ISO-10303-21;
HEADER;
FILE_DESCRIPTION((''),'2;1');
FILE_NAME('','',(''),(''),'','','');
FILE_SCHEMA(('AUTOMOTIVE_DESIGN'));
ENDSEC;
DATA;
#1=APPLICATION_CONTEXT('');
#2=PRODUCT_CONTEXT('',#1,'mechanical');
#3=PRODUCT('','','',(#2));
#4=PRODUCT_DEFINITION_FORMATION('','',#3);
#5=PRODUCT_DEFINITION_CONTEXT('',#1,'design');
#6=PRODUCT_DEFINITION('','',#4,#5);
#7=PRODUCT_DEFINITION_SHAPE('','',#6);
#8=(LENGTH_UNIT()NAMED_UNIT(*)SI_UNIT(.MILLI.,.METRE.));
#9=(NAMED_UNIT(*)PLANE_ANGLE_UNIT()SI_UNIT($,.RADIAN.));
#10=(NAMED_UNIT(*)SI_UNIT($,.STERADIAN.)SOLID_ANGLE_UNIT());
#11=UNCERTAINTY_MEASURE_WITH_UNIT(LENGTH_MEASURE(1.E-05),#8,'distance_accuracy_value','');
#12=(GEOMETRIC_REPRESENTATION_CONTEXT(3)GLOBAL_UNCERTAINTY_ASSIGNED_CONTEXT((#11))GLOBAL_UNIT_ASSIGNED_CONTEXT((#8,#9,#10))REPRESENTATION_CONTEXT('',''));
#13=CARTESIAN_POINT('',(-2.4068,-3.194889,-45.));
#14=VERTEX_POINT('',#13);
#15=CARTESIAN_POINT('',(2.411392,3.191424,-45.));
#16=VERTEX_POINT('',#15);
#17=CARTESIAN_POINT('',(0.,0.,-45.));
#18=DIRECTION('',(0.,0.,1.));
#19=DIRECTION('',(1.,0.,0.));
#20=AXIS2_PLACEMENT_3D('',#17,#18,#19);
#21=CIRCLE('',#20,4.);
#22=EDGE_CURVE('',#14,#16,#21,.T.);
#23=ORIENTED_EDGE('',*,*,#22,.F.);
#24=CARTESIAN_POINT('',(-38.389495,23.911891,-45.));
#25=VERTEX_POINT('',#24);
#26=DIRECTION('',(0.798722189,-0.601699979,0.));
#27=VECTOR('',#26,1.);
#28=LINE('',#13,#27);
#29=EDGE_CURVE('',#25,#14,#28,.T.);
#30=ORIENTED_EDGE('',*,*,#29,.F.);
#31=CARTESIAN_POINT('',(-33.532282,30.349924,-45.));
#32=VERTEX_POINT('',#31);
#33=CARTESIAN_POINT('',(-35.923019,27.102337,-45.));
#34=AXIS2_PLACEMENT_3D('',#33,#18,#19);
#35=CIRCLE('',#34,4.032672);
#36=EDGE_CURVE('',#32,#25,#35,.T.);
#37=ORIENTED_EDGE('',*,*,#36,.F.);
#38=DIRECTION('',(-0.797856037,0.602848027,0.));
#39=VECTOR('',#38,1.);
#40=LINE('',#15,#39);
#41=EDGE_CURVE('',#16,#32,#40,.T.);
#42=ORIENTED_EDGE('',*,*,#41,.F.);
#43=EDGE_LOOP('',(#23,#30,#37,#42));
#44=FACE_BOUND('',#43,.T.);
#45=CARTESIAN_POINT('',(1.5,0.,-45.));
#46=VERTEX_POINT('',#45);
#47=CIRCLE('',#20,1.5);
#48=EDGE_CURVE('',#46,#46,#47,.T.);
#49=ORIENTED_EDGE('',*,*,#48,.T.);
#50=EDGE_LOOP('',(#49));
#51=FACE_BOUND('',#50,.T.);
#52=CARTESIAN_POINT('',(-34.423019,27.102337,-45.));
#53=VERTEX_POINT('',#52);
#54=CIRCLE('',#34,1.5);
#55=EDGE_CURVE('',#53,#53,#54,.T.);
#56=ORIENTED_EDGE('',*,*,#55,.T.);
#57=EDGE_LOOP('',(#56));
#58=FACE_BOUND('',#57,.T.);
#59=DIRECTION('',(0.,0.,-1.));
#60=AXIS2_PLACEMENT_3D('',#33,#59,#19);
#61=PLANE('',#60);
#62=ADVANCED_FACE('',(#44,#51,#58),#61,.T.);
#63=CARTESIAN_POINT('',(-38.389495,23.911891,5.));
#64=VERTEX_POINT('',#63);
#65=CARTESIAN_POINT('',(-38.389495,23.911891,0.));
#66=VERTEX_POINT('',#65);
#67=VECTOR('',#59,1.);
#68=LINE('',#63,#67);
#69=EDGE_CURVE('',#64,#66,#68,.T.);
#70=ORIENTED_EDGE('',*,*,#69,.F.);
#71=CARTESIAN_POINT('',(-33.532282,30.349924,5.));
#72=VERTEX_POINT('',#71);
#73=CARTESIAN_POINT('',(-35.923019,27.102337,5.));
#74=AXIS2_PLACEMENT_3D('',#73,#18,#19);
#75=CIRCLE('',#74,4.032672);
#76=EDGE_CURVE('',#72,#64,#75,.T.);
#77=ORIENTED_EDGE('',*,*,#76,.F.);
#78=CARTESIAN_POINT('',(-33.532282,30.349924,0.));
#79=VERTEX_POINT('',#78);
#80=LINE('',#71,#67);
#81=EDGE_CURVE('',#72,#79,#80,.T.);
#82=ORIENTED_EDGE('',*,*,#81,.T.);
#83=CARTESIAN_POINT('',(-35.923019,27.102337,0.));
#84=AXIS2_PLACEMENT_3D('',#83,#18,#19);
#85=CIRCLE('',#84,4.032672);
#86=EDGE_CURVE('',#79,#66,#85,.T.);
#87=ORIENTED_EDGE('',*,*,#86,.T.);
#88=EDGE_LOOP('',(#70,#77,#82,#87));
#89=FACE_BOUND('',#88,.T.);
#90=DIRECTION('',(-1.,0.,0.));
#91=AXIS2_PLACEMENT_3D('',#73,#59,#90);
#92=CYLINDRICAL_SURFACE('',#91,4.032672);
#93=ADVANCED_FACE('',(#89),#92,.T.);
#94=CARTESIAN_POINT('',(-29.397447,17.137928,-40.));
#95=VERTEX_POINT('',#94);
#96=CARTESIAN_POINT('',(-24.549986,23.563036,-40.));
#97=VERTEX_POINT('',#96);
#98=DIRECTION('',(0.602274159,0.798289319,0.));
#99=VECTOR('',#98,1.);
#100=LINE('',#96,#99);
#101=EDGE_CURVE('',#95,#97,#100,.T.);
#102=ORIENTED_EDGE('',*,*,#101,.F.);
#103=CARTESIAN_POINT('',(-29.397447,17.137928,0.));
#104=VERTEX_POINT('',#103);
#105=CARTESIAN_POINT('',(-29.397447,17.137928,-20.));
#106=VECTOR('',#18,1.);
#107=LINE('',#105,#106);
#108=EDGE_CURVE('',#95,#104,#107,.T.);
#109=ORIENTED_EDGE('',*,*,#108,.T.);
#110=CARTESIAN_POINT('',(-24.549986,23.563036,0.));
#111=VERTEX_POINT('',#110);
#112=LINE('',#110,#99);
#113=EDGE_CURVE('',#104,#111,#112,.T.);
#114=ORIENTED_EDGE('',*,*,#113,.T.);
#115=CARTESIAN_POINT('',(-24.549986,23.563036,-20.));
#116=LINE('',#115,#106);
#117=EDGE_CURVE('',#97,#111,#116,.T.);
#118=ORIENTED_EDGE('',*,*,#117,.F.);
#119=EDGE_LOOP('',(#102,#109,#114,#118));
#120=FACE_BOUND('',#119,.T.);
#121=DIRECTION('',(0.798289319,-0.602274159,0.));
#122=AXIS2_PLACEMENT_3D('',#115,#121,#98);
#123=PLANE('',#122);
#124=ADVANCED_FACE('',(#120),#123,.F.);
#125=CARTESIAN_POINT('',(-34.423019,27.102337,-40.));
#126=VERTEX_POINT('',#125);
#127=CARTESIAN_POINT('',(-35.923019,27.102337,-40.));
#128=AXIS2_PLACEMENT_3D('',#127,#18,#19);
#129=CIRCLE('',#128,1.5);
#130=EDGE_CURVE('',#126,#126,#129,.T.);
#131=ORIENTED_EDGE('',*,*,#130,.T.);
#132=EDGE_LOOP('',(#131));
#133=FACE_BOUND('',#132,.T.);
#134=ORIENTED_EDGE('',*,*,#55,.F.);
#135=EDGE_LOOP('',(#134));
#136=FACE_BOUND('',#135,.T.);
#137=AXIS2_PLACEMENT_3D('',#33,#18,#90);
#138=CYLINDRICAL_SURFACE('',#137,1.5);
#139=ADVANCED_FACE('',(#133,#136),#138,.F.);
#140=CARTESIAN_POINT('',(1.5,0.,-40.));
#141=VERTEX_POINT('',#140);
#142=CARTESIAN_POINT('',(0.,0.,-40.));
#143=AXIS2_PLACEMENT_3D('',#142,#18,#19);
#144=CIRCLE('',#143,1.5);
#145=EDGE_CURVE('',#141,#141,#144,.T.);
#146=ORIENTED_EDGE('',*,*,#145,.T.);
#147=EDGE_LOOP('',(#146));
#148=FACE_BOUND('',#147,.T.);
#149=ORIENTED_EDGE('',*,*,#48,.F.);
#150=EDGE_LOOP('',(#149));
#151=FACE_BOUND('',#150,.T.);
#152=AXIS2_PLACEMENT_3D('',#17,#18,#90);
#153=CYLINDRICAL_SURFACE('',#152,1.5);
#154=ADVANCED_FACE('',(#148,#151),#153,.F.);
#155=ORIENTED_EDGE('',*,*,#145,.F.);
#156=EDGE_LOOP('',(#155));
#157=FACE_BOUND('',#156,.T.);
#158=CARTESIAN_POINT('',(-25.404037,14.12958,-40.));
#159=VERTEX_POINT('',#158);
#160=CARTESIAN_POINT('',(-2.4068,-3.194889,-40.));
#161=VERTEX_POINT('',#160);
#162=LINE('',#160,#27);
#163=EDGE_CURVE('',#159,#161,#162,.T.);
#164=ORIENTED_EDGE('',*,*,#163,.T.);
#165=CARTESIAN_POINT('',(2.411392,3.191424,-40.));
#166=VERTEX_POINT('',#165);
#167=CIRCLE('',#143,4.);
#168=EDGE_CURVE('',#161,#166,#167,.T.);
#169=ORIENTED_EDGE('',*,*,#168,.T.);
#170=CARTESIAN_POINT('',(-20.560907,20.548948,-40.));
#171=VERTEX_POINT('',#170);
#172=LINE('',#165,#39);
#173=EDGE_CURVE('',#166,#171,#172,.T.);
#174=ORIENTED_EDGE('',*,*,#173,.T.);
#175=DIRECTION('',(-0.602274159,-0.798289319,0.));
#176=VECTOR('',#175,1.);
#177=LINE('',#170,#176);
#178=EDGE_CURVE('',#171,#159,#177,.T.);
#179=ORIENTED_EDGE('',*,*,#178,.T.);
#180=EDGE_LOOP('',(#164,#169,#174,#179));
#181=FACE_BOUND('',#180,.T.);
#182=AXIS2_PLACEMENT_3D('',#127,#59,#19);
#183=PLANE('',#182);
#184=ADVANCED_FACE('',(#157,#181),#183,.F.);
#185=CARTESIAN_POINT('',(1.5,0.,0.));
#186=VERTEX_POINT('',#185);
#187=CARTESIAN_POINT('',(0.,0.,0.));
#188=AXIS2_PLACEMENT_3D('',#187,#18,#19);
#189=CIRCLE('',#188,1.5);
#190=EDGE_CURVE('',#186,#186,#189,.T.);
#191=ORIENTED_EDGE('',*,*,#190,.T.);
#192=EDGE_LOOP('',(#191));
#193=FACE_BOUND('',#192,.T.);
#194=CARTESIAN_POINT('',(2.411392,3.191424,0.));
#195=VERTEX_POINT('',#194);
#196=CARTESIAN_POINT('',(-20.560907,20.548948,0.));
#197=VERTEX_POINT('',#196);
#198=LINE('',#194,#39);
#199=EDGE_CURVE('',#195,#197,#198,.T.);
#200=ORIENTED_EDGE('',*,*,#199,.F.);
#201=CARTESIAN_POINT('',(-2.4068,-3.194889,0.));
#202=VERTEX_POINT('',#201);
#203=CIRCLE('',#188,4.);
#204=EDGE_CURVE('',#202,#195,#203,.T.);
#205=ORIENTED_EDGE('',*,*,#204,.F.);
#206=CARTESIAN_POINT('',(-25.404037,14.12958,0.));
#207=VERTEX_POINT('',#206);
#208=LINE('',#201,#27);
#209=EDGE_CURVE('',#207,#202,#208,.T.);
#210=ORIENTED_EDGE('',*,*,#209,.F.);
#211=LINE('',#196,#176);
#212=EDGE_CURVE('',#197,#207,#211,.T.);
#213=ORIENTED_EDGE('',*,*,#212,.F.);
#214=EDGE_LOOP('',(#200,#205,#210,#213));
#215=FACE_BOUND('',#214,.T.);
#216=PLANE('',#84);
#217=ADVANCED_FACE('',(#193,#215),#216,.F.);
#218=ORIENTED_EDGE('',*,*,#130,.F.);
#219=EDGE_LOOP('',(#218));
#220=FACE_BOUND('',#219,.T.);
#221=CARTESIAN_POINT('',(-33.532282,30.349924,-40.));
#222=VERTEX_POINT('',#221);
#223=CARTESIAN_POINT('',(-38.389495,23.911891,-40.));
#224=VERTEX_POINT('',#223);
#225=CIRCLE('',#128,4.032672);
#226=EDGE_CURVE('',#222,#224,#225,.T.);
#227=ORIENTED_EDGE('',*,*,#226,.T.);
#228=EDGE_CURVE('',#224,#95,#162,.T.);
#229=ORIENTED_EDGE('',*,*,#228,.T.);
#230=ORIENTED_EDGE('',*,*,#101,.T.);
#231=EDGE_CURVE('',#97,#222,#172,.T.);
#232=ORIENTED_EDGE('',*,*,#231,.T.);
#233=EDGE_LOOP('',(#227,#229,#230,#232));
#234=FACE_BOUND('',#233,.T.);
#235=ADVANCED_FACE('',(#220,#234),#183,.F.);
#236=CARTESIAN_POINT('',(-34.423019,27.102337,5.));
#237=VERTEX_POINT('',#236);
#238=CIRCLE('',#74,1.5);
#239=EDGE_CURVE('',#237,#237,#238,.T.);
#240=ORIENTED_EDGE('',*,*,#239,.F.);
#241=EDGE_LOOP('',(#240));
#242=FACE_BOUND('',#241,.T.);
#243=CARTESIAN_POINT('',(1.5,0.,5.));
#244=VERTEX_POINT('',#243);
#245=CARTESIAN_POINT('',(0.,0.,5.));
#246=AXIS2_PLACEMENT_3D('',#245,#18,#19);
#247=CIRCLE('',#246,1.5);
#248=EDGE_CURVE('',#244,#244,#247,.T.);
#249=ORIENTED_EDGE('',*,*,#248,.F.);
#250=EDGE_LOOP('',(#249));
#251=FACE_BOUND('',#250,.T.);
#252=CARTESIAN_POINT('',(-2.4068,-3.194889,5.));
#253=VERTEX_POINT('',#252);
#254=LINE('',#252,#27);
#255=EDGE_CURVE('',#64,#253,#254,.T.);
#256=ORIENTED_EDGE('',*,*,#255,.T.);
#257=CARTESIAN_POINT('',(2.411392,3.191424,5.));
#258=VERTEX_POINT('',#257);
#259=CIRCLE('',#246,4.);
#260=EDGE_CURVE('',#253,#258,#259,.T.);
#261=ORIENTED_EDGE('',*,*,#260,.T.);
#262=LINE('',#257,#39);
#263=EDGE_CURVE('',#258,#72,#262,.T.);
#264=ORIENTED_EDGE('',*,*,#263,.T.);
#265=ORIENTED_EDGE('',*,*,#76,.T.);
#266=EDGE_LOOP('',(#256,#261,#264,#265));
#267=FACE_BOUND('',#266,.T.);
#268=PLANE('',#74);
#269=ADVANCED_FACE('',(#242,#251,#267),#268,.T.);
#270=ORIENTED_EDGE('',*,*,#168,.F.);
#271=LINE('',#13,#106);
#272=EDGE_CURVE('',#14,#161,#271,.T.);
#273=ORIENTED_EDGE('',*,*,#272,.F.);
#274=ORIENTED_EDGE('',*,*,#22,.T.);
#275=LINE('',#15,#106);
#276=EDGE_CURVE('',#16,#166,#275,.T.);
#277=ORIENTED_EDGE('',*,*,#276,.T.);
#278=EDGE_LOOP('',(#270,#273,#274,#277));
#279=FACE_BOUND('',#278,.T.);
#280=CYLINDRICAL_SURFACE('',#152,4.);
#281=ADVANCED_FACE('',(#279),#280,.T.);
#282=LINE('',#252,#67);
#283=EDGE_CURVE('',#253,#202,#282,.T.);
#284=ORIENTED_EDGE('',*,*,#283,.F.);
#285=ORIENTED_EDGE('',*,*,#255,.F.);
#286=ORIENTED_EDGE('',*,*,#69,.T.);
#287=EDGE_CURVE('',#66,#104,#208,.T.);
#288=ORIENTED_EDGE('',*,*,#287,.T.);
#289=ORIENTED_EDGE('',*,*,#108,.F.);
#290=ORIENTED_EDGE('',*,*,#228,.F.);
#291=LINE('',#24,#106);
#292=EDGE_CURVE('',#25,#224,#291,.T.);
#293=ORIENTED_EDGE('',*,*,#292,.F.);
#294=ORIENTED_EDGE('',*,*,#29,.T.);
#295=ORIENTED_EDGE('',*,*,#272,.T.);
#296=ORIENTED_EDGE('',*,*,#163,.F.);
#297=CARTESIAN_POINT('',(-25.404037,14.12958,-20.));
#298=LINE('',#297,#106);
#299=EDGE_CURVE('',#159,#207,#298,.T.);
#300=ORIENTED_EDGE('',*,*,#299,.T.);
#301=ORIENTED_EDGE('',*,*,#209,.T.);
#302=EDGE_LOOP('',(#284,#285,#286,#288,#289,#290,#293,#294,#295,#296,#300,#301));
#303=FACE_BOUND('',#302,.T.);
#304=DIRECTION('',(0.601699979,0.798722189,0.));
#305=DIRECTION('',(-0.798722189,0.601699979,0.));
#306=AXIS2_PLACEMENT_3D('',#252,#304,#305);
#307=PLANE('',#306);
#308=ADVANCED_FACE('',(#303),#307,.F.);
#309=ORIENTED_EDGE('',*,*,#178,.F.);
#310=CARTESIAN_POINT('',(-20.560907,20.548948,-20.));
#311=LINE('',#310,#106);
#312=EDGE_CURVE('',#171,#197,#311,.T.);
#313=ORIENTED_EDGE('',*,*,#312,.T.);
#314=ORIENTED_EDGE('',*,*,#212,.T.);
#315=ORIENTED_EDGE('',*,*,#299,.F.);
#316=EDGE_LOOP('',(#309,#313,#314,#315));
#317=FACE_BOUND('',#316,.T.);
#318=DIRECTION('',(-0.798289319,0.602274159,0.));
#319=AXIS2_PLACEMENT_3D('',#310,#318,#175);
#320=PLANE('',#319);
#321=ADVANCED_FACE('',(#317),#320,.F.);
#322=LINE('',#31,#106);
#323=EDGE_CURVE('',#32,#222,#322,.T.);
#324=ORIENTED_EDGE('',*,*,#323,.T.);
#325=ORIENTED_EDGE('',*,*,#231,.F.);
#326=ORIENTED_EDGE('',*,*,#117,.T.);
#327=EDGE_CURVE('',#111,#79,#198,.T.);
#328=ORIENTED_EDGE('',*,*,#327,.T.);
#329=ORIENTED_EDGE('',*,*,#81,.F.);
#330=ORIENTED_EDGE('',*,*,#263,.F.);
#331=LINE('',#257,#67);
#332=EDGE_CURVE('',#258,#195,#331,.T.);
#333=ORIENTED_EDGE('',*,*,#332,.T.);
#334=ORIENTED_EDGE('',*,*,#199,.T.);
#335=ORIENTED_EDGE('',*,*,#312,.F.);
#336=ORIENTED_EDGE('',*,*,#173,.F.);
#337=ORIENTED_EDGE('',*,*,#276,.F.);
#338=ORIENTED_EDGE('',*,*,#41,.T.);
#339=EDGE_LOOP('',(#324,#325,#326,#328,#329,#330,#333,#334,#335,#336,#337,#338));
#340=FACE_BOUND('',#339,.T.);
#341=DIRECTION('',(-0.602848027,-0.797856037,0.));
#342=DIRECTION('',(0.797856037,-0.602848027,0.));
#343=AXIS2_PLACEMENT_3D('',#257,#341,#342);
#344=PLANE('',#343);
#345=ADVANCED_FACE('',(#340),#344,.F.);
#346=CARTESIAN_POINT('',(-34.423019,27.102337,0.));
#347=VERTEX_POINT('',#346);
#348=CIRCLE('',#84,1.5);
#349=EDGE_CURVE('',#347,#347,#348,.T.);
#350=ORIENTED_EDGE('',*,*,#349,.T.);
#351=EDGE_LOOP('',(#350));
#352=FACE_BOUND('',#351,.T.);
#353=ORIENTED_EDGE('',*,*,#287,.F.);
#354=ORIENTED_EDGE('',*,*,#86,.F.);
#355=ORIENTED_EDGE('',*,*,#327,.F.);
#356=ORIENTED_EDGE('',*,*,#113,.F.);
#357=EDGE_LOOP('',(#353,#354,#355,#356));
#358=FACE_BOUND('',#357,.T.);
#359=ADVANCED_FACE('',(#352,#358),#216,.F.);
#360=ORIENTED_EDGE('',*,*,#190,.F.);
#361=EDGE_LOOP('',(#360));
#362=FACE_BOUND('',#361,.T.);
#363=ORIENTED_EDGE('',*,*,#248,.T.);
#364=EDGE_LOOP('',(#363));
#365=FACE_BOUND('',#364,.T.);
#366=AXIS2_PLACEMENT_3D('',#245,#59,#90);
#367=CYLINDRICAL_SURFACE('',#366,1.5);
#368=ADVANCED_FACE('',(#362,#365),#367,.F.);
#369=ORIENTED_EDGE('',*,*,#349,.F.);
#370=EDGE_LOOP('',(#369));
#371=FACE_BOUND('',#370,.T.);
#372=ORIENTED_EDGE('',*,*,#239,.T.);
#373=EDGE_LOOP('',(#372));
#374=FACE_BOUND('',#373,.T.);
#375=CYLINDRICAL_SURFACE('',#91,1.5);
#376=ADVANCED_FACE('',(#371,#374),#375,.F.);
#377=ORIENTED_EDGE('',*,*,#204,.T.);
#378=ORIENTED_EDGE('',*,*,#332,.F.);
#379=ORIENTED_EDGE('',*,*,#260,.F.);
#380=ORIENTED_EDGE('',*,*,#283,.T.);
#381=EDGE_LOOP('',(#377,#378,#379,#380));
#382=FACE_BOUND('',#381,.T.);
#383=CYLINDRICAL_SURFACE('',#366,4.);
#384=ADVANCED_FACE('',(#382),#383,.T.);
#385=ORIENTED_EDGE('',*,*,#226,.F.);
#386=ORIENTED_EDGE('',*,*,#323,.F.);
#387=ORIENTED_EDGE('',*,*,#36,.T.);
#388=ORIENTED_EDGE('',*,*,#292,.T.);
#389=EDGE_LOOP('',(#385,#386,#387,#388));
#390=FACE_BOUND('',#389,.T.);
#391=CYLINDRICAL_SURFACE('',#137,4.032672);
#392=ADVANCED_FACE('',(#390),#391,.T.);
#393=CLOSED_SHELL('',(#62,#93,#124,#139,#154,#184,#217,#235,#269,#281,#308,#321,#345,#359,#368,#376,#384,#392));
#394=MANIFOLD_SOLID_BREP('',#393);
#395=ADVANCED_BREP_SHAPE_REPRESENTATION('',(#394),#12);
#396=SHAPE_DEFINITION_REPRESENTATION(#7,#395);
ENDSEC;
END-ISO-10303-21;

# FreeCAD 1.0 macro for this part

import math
import FreeCAD as App
import Part
import Sketcher

V = App.Vector

doc = App.newDocument("Part")
body = doc.addObject("PartDesign::Body", "Body")

# Sketch on XY plane
sketch1 = body.newObject("Sketcher::SketchObject", "Sketch")
sketch1.AttachmentSupport = (doc.getObject("XY_Plane"), [""])
sketch1.MapMode = "FlatFace"
sketch1.addGeometry([
    Part.LineSegment(V(2.4, 3.2, 0), V(-33.5, 30.3, 0)),  # 0
    Part.ArcOfCircle(Part.Circle(V(-35.9, 27.1, 0), V(0, 0, 1), 4), math.radians(54), math.radians(232)),  # 1
    Part.LineSegment(V(-38.4, 23.9, 0), V(-2.4, -3.2, 0)),  # 2
    Part.ArcOfCircle(Part.Circle(V(0, 0, 0), V(0, 0, 1), 4), math.radians(-127), math.radians(53)),  # 3
    Part.Circle(V(0, 0, 0), V(0, 0, 1), 1.5),  # 4
    Part.Circle(V(-35.9, 27.1, 0), V(0, 0, 1), 1.5),  # 5
], False)
sketch1.addConstraint([
    Sketcher.Constraint("Coincident", 0, 2, 1, 1),
    Sketcher.Constraint("Coincident", 1, 2, 2, 1),
    Sketcher.Constraint("Tangent", 2, 2, 3, 1),
    Sketcher.Constraint("Tangent", 3, 2, 0, 1),
    Sketcher.Constraint("Coincident", 3, 3, -1, 1),
    Sketcher.Constraint("Coincident", 4, 3, -1, 1),
    Sketcher.Constraint("Coincident", 5, 3, 1, 3),
    Sketcher.Constraint("Equal", 4, 5),
    Sketcher.Constraint("Equal", 0, 2),
    Sketcher.Constraint("Diameter", 4, 3.0),
    Sketcher.Constraint("Radius", 3, 4.0),
    Sketcher.Constraint("Radius", 1, 4.032672),
    Sketcher.Constraint("DistanceX", 2, 2, -1, 1, 2.4068),
    Sketcher.Constraint("DistanceY", 3, 2, 0, 2, 27.1585),
    Sketcher.Constraint("DistanceX", 1, 3, -1, 1, 35.923019),
])
pad1 = body.newObject("PartDesign::Pad", "Pad")
pad1.Profile = sketch1
pad1.Length = 5

# Sketch on XY plane
sketch2 = body.newObject("Sketcher::SketchObject", "Sketch001")
sketch2.AttachmentSupport = (doc.getObject("XY_Plane"), [""])
sketch2.MapMode = "FlatFace"
sketch2.addGeometry([
    Part.LineSegment(V(-20.6, 20.5, 0), V(-25.4, 14.1, 0)),
    Part.LineSegment(V(-25.4, 14.1, 0), V(-29.4, 17.1, 0)),
    Part.LineSegment(V(-29.4, 17.1, 0), V(-24.5, 23.6, 0)),
    Part.LineSegment(V(-24.5, 23.6, 0), V(-20.6, 20.5, 0)),
], False)
sketch2.addConstraint([
    Sketcher.Constraint("Coincident", 0, 2, 1, 1),
    Sketcher.Constraint("Coincident", 1, 2, 2, 1),
    Sketcher.Constraint("Coincident", 2, 2, 3, 1),
    Sketcher.Constraint("Coincident", 3, 2, 0, 1),
    Sketcher.Constraint("Parallel", 0, 2),
    Sketcher.Constraint("Distance", 1, 4.999748),
    Sketcher.Constraint("DistanceY", -1, 1, 0, 2, 14.12958),
    Sketcher.Constraint("DistanceY", -1, 1, 1, 2, 17.137928),
    Sketcher.Constraint("DistanceX", 1, 2, 2, 2, 4.847461),
    Sketcher.Constraint("DistanceY", 1, 2, 2, 2, 6.425108),
    Sketcher.Constraint("DistanceX", 2, 2, 3, 2, 3.989079),
    Sketcher.Constraint("DistanceX", 0, 2, -1, 1, 25.404037),
])
pad2 = body.newObject("PartDesign::Pad", "Pad001")
pad2.Profile = sketch2
pad2.Length = 20
pad2.Reversed = True
doc.recompute()

datumplane = body.newObject("PartDesign::Plane", "DatumPlane")
datumplane.AttachmentSupport = (doc.getObject("XY_Plane"), [""])
datumplane.MapMode = "FlatFace"
datumplane.AttachmentOffset = App.Placement(V(0, 0, -20), App.Rotation())
mirrored = body.newObject("PartDesign::Mirrored", "Mirrored")
mirrored.Originals = [pad1, pad2]
mirrored.MirrorPlane = (datumplane, [""])
body.Tip = mirrored

doc.recompute()
